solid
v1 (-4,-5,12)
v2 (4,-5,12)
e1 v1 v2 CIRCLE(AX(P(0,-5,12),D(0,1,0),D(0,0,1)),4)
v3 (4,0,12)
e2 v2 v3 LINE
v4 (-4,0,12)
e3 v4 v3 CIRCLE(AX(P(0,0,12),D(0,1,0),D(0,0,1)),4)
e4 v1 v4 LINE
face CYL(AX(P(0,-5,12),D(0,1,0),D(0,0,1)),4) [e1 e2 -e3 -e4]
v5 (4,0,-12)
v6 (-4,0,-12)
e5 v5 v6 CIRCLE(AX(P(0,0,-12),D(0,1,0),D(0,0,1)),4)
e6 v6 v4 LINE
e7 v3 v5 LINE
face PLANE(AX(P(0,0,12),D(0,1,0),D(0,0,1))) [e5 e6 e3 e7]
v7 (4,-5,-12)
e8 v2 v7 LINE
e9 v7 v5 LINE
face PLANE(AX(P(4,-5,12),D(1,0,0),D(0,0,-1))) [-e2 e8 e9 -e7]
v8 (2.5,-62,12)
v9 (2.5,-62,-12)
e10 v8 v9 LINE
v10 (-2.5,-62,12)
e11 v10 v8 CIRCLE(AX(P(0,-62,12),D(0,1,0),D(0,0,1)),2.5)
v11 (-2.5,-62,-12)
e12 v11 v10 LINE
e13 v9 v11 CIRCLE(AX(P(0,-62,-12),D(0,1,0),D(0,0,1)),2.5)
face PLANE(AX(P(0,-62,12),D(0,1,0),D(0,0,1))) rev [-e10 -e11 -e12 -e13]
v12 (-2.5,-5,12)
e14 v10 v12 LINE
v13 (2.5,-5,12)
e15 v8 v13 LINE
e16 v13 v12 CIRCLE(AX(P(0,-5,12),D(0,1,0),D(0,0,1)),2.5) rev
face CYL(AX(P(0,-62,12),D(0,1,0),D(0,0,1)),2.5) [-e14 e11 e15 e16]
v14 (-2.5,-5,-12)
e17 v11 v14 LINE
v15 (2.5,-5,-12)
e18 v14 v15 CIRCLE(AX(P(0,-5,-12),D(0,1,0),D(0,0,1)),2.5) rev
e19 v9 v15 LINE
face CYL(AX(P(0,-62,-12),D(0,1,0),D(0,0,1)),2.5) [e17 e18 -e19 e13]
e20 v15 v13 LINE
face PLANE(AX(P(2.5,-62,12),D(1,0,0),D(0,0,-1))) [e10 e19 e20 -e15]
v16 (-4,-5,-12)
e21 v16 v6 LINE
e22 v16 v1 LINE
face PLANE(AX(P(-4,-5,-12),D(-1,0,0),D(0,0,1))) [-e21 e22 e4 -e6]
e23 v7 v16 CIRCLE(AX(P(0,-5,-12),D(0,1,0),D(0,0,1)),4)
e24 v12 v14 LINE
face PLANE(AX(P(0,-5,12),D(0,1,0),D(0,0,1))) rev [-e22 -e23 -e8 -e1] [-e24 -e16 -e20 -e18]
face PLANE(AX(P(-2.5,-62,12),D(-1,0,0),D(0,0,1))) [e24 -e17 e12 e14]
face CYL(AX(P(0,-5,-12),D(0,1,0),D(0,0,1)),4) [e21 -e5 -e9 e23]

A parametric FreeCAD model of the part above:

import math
import FreeCAD as App
import Part
import Sketcher
Q = App.Units.Quantity

doc = App.newDocument("Part")
body = doc.addObject("PartDesign::Body", "Body")

# Sketch on XZ plane
sketch1 = doc.addObject("Sketcher::SketchObject", "Sketch")
body.addObject(sketch1)
sketch1.AttachmentSupport = (doc.XZ_Plane, [""])
sketch1.MapMode = "FlatFace"
sketch1.addGeometry(Part.LineSegment(App.Vector(-2.5, -12, 0), App.Vector(-2.5, 12, 0)), False)
sketch1.addGeometry(Part.ArcOfCircle(Part.Circle(App.Vector(0, 12, 0), App.Vector(0, 0, 1), 2.5), math.radians(0), math.radians(180)), False)
sketch1.addGeometry(Part.LineSegment(App.Vector(2.5, 12, 0), App.Vector(2.5, -12, 0)), False)
sketch1.addGeometry(Part.ArcOfCircle(Part.Circle(App.Vector(0, -12, 0), App.Vector(0, 0, 1), 2.5), math.radians(180), math.radians(360)), False)
sketch1.addConstraint(Sketcher.Constraint("Tangent", 0, 2, 1, 2))
sketch1.addConstraint(Sketcher.Constraint("Tangent", 1, 1, 2, 1))
sketch1.addConstraint(Sketcher.Constraint("Tangent", 2, 2, 3, 2))
sketch1.addConstraint(Sketcher.Constraint("Tangent", 3, 1, 0, 1))
sketch1.addConstraint(Sketcher.Constraint("Vertical", 0))
sketch1.addConstraint(Sketcher.Constraint("Vertical", 2))
sketch1.addConstraint(Sketcher.Constraint("Symmetric", 1, 3, 3, 3, -1, 1))
sketch1.addConstraint(Sketcher.Constraint("Radius", 1, Q("2.5 mm")))
sketch1.addConstraint(Sketcher.Constraint("DistanceY", 0, 1, 0, 2, Q("24 mm")))
pad1 = doc.addObject("PartDesign::Pad", "Pad")
body.addObject(pad1)
pad1.Profile = sketch1
pad1.Length = 62

# Sketch on XZ plane
sketch2 = doc.addObject("Sketcher::SketchObject", "Sketch001")
body.addObject(sketch2)
sketch2.AttachmentSupport = (doc.XZ_Plane, [""])
sketch2.MapMode = "FlatFace"
sketch2.addGeometry(Part.LineSegment(App.Vector(4, 12, 0), App.Vector(4, -12, 0)), False)
sketch2.addGeometry(Part.ArcOfCircle(Part.Circle(App.Vector(0, -12, 0), App.Vector(0, 0, 1), 4), math.radians(180), math.radians(360)), False)
sketch2.addGeometry(Part.LineSegment(App.Vector(-4, -12, 0), App.Vector(-4, 12, 0)), False)
sketch2.addGeometry(Part.ArcOfCircle(Part.Circle(App.Vector(0, 12, 0), App.Vector(0, 0, 1), 4), math.radians(0), math.radians(180)), False)
sketch2.addConstraint(Sketcher.Constraint("Tangent", 0, 2, 1, 2))
sketch2.addConstraint(Sketcher.Constraint("Tangent", 1, 1, 2, 1))
sketch2.addConstraint(Sketcher.Constraint("Tangent", 2, 2, 3, 2))
sketch2.addConstraint(Sketcher.Constraint("Tangent", 3, 1, 0, 1))
sketch2.addConstraint(Sketcher.Constraint("Vertical", 0))
sketch2.addConstraint(Sketcher.Constraint("Vertical", 2))
sketch2.addConstraint(Sketcher.Constraint("Symmetric", 1, 3, 3, 3, -1, 1))
sketch2.addConstraint(Sketcher.Constraint("Radius", 1, Q("4 mm")))
sketch2.addConstraint(Sketcher.Constraint("DistanceY", 0, 2, 0, 1, Q("24 mm")))
pad2 = doc.addObject("PartDesign::Pad", "Pad001")
body.addObject(pad2)
pad2.Profile = sketch2
pad2.Length = 5

doc.recompute()
